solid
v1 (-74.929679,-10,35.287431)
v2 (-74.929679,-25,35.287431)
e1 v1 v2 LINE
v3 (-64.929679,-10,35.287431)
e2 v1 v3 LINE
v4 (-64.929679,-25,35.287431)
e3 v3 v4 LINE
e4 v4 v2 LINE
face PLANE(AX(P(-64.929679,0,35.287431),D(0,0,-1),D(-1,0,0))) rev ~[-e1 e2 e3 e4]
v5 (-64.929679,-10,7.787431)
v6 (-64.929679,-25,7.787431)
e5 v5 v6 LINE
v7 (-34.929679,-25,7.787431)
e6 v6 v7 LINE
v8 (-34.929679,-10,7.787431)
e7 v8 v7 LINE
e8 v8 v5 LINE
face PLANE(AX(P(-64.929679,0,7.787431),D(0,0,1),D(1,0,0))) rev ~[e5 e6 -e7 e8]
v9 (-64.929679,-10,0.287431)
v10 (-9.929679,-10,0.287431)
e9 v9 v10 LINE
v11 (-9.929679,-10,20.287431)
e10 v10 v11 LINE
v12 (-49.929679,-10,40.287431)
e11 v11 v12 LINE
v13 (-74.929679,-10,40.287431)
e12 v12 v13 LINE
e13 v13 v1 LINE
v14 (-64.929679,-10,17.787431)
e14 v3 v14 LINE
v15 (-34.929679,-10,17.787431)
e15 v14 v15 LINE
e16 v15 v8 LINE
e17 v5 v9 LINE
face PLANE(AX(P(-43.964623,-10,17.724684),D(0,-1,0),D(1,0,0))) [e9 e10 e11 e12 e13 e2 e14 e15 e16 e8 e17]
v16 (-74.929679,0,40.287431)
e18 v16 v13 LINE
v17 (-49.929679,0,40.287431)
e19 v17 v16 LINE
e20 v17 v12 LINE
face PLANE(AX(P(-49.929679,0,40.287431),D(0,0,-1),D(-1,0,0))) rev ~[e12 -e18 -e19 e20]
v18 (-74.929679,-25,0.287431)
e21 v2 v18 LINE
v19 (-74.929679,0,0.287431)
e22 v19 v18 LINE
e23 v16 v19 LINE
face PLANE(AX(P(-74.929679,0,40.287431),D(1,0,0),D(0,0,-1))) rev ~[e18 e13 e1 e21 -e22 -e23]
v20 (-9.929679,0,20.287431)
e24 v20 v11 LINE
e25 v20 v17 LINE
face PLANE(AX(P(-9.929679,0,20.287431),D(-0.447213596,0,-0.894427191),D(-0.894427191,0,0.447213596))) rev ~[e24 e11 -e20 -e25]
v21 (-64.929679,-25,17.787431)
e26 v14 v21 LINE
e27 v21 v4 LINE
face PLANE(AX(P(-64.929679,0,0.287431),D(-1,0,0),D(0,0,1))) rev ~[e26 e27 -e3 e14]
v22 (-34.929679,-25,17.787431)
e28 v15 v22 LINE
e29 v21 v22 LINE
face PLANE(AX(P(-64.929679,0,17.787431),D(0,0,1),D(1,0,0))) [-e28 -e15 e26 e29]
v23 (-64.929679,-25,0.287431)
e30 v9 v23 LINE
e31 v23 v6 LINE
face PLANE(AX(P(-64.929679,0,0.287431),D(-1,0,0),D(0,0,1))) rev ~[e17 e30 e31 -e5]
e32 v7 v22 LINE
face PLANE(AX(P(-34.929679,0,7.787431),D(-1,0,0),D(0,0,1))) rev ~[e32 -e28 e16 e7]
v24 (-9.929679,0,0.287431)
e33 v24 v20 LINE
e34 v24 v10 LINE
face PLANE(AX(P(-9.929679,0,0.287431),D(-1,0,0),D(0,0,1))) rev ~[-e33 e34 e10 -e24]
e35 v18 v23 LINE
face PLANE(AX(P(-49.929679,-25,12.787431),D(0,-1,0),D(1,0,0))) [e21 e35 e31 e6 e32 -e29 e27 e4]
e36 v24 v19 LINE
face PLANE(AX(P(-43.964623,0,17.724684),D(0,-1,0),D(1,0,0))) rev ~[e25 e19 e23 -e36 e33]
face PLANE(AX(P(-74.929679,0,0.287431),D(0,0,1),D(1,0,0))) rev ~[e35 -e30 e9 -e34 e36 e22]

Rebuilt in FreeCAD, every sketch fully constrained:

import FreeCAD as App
import Part
import Sketcher
from FreeCAD import Vector


def add_polygon(sketch, points):
    """Adds a closed chain of lines whose ends are joined by coincident constraints."""
    first, n = sketch.GeometryCount, len(points)
    for a, b in zip(points, points[1:] + points[:1]):
        sketch.addGeometry(Part.LineSegment(App.Vector(*a, 0), App.Vector(*b, 0)), False)
    for i in range(n):
        sketch.addConstraint(Sketcher.Constraint("Coincident", first + i, 2, first + (i + 1) % n, 1))

doc = App.newDocument("Part")
body = doc.addObject("PartDesign::Body", "Body")

# Sketch on XZ plane
sketch1 = body.newObject("Sketcher::SketchObject", "Sketch")
sketch1.AttachmentSupport = (doc.getObject("XZ_Plane"), [""])
sketch1.MapMode = "FlatFace"
add_polygon(sketch1, [(-65, 35), (-75, 35), (-75, 0), (-65, 0)])  # lines 0-3
sketch1.addConstraint(Sketcher.Constraint("Horizontal", 0))
sketch1.addConstraint(Sketcher.Constraint("Vertical", 1))
sketch1.addConstraint(Sketcher.Constraint("Horizontal", 2))
sketch1.addConstraint(Sketcher.Constraint("Vertical", 3))
sketch1.addConstraint(Sketcher.Constraint("DistanceX", 0, 2, 0, 1, 10.0))
sketch1.addConstraint(Sketcher.Constraint("DistanceY", 1, 2, 1, 1, 35.0))
sketch1.addConstraint(Sketcher.Constraint("DistanceX", 0, 2, -1, 1, 74.929679))
sketch1.addConstraint(Sketcher.Constraint("DistanceY", -1, 1, 0, 2, 35.287431))
pad1 = body.newObject("PartDesign::Pad", "Pad")
pad1.Profile = sketch1
pad1.Length = 25

# Sketch on XZ plane
sketch2 = body.newObject("Sketcher::SketchObject", "Sketch001")
sketch2.AttachmentSupport = (doc.getObject("XZ_Plane"), [""])
sketch2.MapMode = "FlatFace"
add_polygon(sketch2, [(-75, 40), (-75, 35), (-65, 35), (-65, 18), (-35, 18), (-35, 8), (-65, 8), (-65, 0), (-10, 0), (-10, 20), (-50, 40)])  # lines 0-10
sketch2.addConstraint(Sketcher.Constraint("Vertical", 0))
sketch2.addConstraint(Sketcher.Constraint("Horizontal", 1))
sketch2.addConstraint(Sketcher.Constraint("Vertical", 2))
sketch2.addConstraint(Sketcher.Constraint("Horizontal", 3))
sketch2.addConstraint(Sketcher.Constraint("Vertical", 4))
sketch2.addConstraint(Sketcher.Constraint("Horizontal", 5))
sketch2.addConstraint(Sketcher.Constraint("Vertical", 6))
sketch2.addConstraint(Sketcher.Constraint("Horizontal", 7))
sketch2.addConstraint(Sketcher.Constraint("Vertical", 8))
sketch2.addConstraint(Sketcher.Constraint("Horizontal", 10))
sketch2.addConstraint(Sketcher.Constraint("Vertical", 2, 2, 5, 2))
sketch2.addConstraint(Sketcher.Constraint("Equal", 1, 4))
sketch2.addConstraint(Sketcher.Constraint("DistanceX", 1, 1, 1, 2, 10.0))
sketch2.addConstraint(Sketcher.Constraint("DistanceX", 3, 1, 3, 2, 30.0))
sketch2.addConstraint(Sketcher.Constraint("DistanceX", 7, 1, 7, 2, 55.0))
sketch2.addConstraint(Sketcher.Constraint("DistanceX", 10, 2, 10, 1, 25.0))
sketch2.addConstraint(Sketcher.Constraint("DistanceY", 0, 2, 0, 1, 5.0))
sketch2.addConstraint(Sketcher.Constraint("DistanceY", 8, 1, 8, 2, 20.0))
sketch2.addConstraint(Sketcher.Constraint("DistanceY", 2, 2, 2, 1, 17.5))
sketch2.addConstraint(Sketcher.Constraint("DistanceY", 6, 2, 6, 1, 7.5))
sketch2.addConstraint(Sketcher.Constraint("DistanceX", 0, 2, -1, 1, 74.929679))
sketch2.addConstraint(Sketcher.Constraint("DistanceY", -1, 1, 0, 2, 35.287431))
pad2 = body.newObject("PartDesign::Pad", "Pad001")
pad2.Profile = sketch2
pad2.Length = 10

# Sketch on XZ plane
sketch3 = body.newObject("Sketcher::SketchObject", "Sketch002")
sketch3.AttachmentSupport = (doc.getObject("XZ_Plane"), [""])
sketch3.MapMode = "FlatFace"
add_polygon(sketch3, [(-65, 18), (-65, 8), (-35, 8), (-35, 18)])  # lines 0-3
sketch3.addConstraint(Sketcher.Constraint("Vertical", 0))
sketch3.addConstraint(Sketcher.Constraint("Horizontal", 1))
sketch3.addConstraint(Sketcher.Constraint("Vertical", 2))
sketch3.addConstraint(Sketcher.Constraint("Horizontal", 3))
sketch3.addConstraint(Sketcher.Constraint("DistanceX", 1, 1, 1, 2, 30.0))
sketch3.addConstraint(Sketcher.Constraint("DistanceY", 0, 2, 0, 1, 10.0))
sketch3.addConstraint(Sketcher.Constraint("DistanceX", 0, 2, -1, 1, 64.929679))
sketch3.addConstraint(Sketcher.Constraint("DistanceY", -1, 1, 0, 2, 7.787431))
pad3 = body.newObject("PartDesign::Pad", "Pad002")
pad3.Profile = sketch3
pad3.Length = 25

doc.recompute()
